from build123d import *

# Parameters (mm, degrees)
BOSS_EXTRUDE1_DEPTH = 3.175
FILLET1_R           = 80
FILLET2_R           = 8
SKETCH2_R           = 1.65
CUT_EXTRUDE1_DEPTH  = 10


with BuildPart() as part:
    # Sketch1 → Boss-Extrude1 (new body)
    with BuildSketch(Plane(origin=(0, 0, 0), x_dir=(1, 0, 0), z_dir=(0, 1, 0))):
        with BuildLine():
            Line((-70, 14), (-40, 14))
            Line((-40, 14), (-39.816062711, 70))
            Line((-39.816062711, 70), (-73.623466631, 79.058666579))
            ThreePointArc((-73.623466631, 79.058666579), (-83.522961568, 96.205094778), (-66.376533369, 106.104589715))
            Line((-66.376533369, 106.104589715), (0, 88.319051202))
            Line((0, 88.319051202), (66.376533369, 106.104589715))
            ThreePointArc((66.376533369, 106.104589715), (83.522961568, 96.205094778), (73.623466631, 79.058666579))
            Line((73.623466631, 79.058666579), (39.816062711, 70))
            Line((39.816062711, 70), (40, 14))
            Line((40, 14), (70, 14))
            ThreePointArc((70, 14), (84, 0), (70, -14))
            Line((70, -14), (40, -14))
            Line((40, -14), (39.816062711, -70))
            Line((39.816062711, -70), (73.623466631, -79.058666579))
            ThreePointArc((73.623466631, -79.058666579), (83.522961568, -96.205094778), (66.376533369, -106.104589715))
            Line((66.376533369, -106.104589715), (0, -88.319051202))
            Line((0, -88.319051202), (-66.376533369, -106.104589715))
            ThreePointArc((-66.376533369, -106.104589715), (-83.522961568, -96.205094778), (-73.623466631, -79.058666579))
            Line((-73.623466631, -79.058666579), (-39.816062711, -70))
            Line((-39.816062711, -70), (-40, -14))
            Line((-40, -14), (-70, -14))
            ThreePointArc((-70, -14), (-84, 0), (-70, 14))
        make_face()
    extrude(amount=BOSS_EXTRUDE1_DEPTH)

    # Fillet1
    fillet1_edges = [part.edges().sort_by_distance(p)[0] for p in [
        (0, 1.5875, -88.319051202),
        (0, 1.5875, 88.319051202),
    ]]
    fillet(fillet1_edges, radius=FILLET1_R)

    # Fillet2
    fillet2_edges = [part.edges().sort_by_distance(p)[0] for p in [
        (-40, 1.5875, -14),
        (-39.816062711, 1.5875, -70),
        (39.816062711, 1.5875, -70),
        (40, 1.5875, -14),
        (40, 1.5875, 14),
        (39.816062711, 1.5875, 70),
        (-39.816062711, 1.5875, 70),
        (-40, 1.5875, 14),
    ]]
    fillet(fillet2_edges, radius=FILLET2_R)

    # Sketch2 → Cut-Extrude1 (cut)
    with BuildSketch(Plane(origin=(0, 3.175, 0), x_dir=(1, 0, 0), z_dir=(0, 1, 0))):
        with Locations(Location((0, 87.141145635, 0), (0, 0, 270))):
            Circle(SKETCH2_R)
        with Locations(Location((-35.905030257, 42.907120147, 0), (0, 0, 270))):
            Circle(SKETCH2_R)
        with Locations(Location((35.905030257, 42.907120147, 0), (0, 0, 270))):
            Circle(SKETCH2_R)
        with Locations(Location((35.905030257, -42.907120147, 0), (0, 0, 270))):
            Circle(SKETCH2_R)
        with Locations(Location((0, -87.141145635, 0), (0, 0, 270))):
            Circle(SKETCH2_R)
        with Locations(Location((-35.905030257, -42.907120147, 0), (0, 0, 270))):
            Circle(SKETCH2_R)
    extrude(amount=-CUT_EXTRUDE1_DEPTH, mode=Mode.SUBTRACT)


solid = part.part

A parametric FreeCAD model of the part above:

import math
import FreeCAD as App
import Part
import Sketcher
from FreeCAD import Vector
Q = App.Units.Quantity


def edges_at(feature, points):
    """Names of the edges that pass closest to the given points."""
    edges = feature.Shape.Edges
    near = lambda p: min(range(len(edges)), key=lambda i: edges[i].distToShape(Part.Vertex(*p))[0])
    return sorted({f"Edge{near(p) + 1}" for p in points})

doc = App.newDocument("Part")
body = doc.addObject("PartDesign::Body", "Body")

sketch1 = body.newObject("Sketcher::SketchObject", "Sketch")
sketch1.AttachmentSupport = (doc.getObject("XZ_Plane"), [""])
sketch1.MapMode = "FlatFace"
sketch1.addGeometry(Part.LineSegment(Vector(-40, -14, 0), Vector(-70, -14, 0)), False)
sketch1.addGeometry(Part.ArcOfCircle(Part.Circle(Vector(-70, 0, 0), Vector(0, 0, 1), 14), math.radians(90), math.radians(270)), False)
sketch1.addGeometry(Part.LineSegment(Vector(-70, 14, 0), Vector(-40, 14, 0)), False)
sketch1.addGeometry(Part.LineSegment(Vector(-40, 14, 0), Vector(-40, 70, 0)), False)
sketch1.addGeometry(Part.LineSegment(Vector(-40, 70, 0), Vector(-74, 79, 0)), False)
sketch1.addGeometry(Part.ArcOfCircle(Part.Circle(Vector(-70, 93, 0), Vector(0, 0, 1), 14), math.radians(75), math.radians(255)), False)
sketch1.addGeometry(Part.LineSegment(Vector(-66, 106, 0), Vector(0, 88, 0)), False)
sketch1.addGeometry(Part.LineSegment(Vector(0, 88, 0), Vector(66, 106, 0)), False)
sketch1.addGeometry(Part.ArcOfCircle(Part.Circle(Vector(70, 93, 0), Vector(0, 0, 1), 14), math.radians(-75), math.radians(105)), False)
sketch1.addGeometry(Part.LineSegment(Vector(74, 79, 0), Vector(40, 70, 0)), False)
sketch1.addGeometry(Part.LineSegment(Vector(40, 70, 0), Vector(40, 14, 0)), False)
sketch1.addGeometry(Part.LineSegment(Vector(40, 14, 0), Vector(70, 14, 0)), False)
sketch1.addGeometry(Part.ArcOfCircle(Part.Circle(Vector(70, 0, 0), Vector(0, 0, 1), 14), math.radians(-90), math.radians(90)), False)
sketch1.addGeometry(Part.LineSegment(Vector(70, -14, 0), Vector(40, -14, 0)), False)
sketch1.addGeometry(Part.LineSegment(Vector(40, -14, 0), Vector(40, -70, 0)), False)
sketch1.addGeometry(Part.LineSegment(Vector(40, -70, 0), Vector(74, -79, 0)), False)
sketch1.addGeometry(Part.ArcOfCircle(Part.Circle(Vector(70, -93, 0), Vector(0, 0, 1), 14), math.radians(-105), math.radians(75)), False)
sketch1.addGeometry(Part.LineSegment(Vector(66, -106, 0), Vector(0, -88, 0)), False)
sketch1.addGeometry(Part.LineSegment(Vector(0, -88, 0), Vector(-66, -106, 0)), False)
sketch1.addGeometry(Part.ArcOfCircle(Part.Circle(Vector(-70, -93, 0), Vector(0, 0, 1), 14), math.radians(105), math.radians(285)), False)
sketch1.addGeometry(Part.LineSegment(Vector(-74, -79, 0), Vector(-40, -70, 0)), False)
sketch1.addGeometry(Part.LineSegment(Vector(-40, -70, 0), Vector(-40, -14, 0)), False)
sketch1.addConstraint(Sketcher.Constraint("Tangent", 0, 2, 1, 2))
sketch1.addConstraint(Sketcher.Constraint("Tangent", 1, 1, 2, 1))
sketch1.addConstraint(Sketcher.Constraint("Coincident", 2, 2, 3, 1))
sketch1.addConstraint(Sketcher.Constraint("Coincident", 3, 2, 4, 1))
sketch1.addConstraint(Sketcher.Constraint("Tangent", 4, 2, 5, 2))
sketch1.addConstraint(Sketcher.Constraint("Tangent", 5, 1, 6, 1))
sketch1.addConstraint(Sketcher.Constraint("Coincident", 6, 2, 7, 1))
sketch1.addConstraint(Sketcher.Constraint("Tangent", 7, 2, 8, 2))
sketch1.addConstraint(Sketcher.Constraint("Tangent", 8, 1, 9, 1))
sketch1.addConstraint(Sketcher.Constraint("Coincident", 9, 2, 10, 1))
sketch1.addConstraint(Sketcher.Constraint("Coincident", 10, 2, 11, 1))
sketch1.addConstraint(Sketcher.Constraint("Tangent", 11, 2, 12, 2))
sketch1.addConstraint(Sketcher.Constraint("Tangent", 12, 1, 13, 1))
sketch1.addConstraint(Sketcher.Constraint("Coincident", 13, 2, 14, 1))
sketch1.addConstraint(Sketcher.Constraint("Coincident", 14, 2, 15, 1))
sketch1.addConstraint(Sketcher.Constraint("Tangent", 15, 2, 16, 2))
sketch1.addConstraint(Sketcher.Constraint("Tangent", 16, 1, 17, 1))
sketch1.addConstraint(Sketcher.Constraint("Coincident", 17, 2, 18, 1))
sketch1.addConstraint(Sketcher.Constraint("Tangent", 18, 2, 19, 2))
sketch1.addConstraint(Sketcher.Constraint("Tangent", 19, 1, 20, 1))
sketch1.addConstraint(Sketcher.Constraint("Coincident", 20, 2, 21, 1))
sketch1.addConstraint(Sketcher.Constraint("Coincident", 21, 2, 0, 1))
sketch1.addConstraint(Sketcher.Constraint("Horizontal", 0))
sketch1.addConstraint(Sketcher.Constraint("Horizontal", 2))
sketch1.addConstraint(Sketcher.Constraint("Horizontal", 11))
sketch1.addConstraint(Sketcher.Constraint("Horizontal", 13))
sketch1.addConstraint(Sketcher.Constraint("Equal", 1, 5))
sketch1.addConstraint(Sketcher.Constraint("Equal", 5, 8))
sketch1.addConstraint(Sketcher.Constraint("Equal", 8, 12))
sketch1.addConstraint(Sketcher.Constraint("Equal", 12, 16))
sketch1.addConstraint(Sketcher.Constraint("Equal", 16, 19))
sketch1.addConstraint(Sketcher.Constraint("Symmetric", 1, 3, 12, 3, -1, 1))
sketch1.addConstraint(Sketcher.Constraint("Symmetric", 5, 3, 16, 3, -1, 1))
sketch1.addConstraint(Sketcher.Constraint("Symmetric", 8, 3, 19, 3, -1, 1))
sketch1.addConstraint(Sketcher.Constraint("Symmetric", 3, 2, 14, 2, -1, 1))
sketch1.addConstraint(Sketcher.Constraint("Symmetric", 6, 2, 17, 2, -1, 1))
sketch1.addConstraint(Sketcher.Constraint("Symmetric", 9, 2, 20, 2, -1, 1))
sketch1.addConstraint(Sketcher.Constraint("Symmetric", 5, 3, 8, 3, -2))
sketch1.addConstraint(Sketcher.Constraint("Symmetric", 3, 2, 9, 2, -2))
sketch1.addConstraint(Sketcher.Constraint("Symmetric", 2, 2, 10, 2, -2))
sketch1.addConstraint(Sketcher.Constraint("PointOnObject", 6, 2, -2))
sketch1.addConstraint(Sketcher.Constraint("Parallel", 4, 6))
sketch1.addConstraint(Sketcher.Constraint("Parallel", 3, 14))
sketch1.addConstraint(Sketcher.Constraint("Parallel", 10, 21))
sketch1.addConstraint(Sketcher.Constraint("Vertical", 1, 3, 5, 3))
sketch1.addConstraint(Sketcher.Constraint("Radius", 1, 14.0))
sketch1.addConstraint(Sketcher.Constraint("DistanceX", 0, 2, 0, 1, 30.0))
sketch1.addConstraint(Sketcher.Constraint("Angle", 4, Q("165 deg")))
sketch1.addConstraint(Sketcher.Constraint("Distance", 4, 35.0))
sketch1.addConstraint(Sketcher.Constraint("DistanceX", 1, 3, -1, 1, 70.0))
sketch1.addConstraint(Sketcher.Constraint("DistanceY", -1, 1, 3, 2, 70.0))
pad1 = body.newObject("PartDesign::Pad", "Pad")
pad1.Profile = sketch1
pad1.Length = 3.175
pad1.Reversed = True
doc.recompute()

fillet = body.newObject("PartDesign::Fillet", "Fillet")
fillet.Base = (pad1, edges_at(pad1, [(0, 1.587, -88.319), (0, 1.587, 88.319)]))
fillet.Radius = 80
doc.recompute()

fillet2 = body.newObject("PartDesign::Fillet", "Fillet001")
fillet2.Base = (fillet, edges_at(fillet, [
    (-40, 1.587, -14),
    (-39.816, 1.587, -70),
    (39.816, 1.587, -70),
    (40, 1.587, -14),
    (40, 1.587, 14),
    (39.816, 1.587, 70),
    (-39.816, 1.587, 70),
    (-40, 1.587, 14),
]))
fillet2.Radius = 8

sketch2 = body.newObject("Sketcher::SketchObject", "Sketch001")
sketch2.AttachmentSupport = (doc.getObject("XZ_Plane"), [""])
sketch2.MapMode = "FlatFace"
sketch2.AttachmentOffset = App.Placement(Vector(0, 0, -3.175), App.Rotation())
sketch2.addGeometry(Part.Circle(Vector(0, -87.1, 0), Vector(0, 0, 1), 1.6), False)
sketch2.addGeometry(Part.Circle(Vector(-35.9, -42.9, 0), Vector(0, 0, 1), 1.6), False)
sketch2.addGeometry(Part.Circle(Vector(35.9, -42.9, 0), Vector(0, 0, 1), 1.6), False)
sketch2.addGeometry(Part.Circle(Vector(35.9, 42.9, 0), Vector(0, 0, 1), 1.6), False)
sketch2.addGeometry(Part.Circle(Vector(0, 87.1, 0), Vector(0, 0, 1), 1.6), False)
sketch2.addGeometry(Part.Circle(Vector(-35.9, 42.9, 0), Vector(0, 0, 1), 1.6), False)
sketch2.addConstraint(Sketcher.Constraint("Equal", 0, 1))
sketch2.addConstraint(Sketcher.Constraint("Equal", 1, 2))
sketch2.addConstraint(Sketcher.Constraint("Equal", 2, 3))
sketch2.addConstraint(Sketcher.Constraint("Equal", 3, 4))
sketch2.addConstraint(Sketcher.Constraint("Equal", 4, 5))
sketch2.addConstraint(Sketcher.Constraint("Symmetric", 1, 3, 3, 3, -1, 1))
sketch2.addConstraint(Sketcher.Constraint("Symmetric", 0, 3, 4, 3, -1, 1))
sketch2.addConstraint(Sketcher.Constraint("Symmetric", 2, 3, 5, 3, -1, 1))
sketch2.addConstraint(Sketcher.Constraint("Symmetric", 1, 3, 2, 3, -2))
sketch2.addConstraint(Sketcher.Constraint("PointOnObject", 0, 3, -2))
sketch2.addConstraint(Sketcher.Constraint("Diameter", 0, 3.3))
sketch2.addConstraint(Sketcher.Constraint("DistanceX", 1, 3, -1, 1, 35.90503))
sketch2.addConstraint(Sketcher.Constraint("DistanceY", 1, 3, -1, 1, 42.90712))
sketch2.addConstraint(Sketcher.Constraint("DistanceY", 0, 3, 4, 3, 174.282291))
pocket1 = body.newObject("PartDesign::Pocket", "Pocket")
pocket1.Profile = sketch2
pocket1.Length = 10
pocket1.Reversed = True

doc.recompute()
